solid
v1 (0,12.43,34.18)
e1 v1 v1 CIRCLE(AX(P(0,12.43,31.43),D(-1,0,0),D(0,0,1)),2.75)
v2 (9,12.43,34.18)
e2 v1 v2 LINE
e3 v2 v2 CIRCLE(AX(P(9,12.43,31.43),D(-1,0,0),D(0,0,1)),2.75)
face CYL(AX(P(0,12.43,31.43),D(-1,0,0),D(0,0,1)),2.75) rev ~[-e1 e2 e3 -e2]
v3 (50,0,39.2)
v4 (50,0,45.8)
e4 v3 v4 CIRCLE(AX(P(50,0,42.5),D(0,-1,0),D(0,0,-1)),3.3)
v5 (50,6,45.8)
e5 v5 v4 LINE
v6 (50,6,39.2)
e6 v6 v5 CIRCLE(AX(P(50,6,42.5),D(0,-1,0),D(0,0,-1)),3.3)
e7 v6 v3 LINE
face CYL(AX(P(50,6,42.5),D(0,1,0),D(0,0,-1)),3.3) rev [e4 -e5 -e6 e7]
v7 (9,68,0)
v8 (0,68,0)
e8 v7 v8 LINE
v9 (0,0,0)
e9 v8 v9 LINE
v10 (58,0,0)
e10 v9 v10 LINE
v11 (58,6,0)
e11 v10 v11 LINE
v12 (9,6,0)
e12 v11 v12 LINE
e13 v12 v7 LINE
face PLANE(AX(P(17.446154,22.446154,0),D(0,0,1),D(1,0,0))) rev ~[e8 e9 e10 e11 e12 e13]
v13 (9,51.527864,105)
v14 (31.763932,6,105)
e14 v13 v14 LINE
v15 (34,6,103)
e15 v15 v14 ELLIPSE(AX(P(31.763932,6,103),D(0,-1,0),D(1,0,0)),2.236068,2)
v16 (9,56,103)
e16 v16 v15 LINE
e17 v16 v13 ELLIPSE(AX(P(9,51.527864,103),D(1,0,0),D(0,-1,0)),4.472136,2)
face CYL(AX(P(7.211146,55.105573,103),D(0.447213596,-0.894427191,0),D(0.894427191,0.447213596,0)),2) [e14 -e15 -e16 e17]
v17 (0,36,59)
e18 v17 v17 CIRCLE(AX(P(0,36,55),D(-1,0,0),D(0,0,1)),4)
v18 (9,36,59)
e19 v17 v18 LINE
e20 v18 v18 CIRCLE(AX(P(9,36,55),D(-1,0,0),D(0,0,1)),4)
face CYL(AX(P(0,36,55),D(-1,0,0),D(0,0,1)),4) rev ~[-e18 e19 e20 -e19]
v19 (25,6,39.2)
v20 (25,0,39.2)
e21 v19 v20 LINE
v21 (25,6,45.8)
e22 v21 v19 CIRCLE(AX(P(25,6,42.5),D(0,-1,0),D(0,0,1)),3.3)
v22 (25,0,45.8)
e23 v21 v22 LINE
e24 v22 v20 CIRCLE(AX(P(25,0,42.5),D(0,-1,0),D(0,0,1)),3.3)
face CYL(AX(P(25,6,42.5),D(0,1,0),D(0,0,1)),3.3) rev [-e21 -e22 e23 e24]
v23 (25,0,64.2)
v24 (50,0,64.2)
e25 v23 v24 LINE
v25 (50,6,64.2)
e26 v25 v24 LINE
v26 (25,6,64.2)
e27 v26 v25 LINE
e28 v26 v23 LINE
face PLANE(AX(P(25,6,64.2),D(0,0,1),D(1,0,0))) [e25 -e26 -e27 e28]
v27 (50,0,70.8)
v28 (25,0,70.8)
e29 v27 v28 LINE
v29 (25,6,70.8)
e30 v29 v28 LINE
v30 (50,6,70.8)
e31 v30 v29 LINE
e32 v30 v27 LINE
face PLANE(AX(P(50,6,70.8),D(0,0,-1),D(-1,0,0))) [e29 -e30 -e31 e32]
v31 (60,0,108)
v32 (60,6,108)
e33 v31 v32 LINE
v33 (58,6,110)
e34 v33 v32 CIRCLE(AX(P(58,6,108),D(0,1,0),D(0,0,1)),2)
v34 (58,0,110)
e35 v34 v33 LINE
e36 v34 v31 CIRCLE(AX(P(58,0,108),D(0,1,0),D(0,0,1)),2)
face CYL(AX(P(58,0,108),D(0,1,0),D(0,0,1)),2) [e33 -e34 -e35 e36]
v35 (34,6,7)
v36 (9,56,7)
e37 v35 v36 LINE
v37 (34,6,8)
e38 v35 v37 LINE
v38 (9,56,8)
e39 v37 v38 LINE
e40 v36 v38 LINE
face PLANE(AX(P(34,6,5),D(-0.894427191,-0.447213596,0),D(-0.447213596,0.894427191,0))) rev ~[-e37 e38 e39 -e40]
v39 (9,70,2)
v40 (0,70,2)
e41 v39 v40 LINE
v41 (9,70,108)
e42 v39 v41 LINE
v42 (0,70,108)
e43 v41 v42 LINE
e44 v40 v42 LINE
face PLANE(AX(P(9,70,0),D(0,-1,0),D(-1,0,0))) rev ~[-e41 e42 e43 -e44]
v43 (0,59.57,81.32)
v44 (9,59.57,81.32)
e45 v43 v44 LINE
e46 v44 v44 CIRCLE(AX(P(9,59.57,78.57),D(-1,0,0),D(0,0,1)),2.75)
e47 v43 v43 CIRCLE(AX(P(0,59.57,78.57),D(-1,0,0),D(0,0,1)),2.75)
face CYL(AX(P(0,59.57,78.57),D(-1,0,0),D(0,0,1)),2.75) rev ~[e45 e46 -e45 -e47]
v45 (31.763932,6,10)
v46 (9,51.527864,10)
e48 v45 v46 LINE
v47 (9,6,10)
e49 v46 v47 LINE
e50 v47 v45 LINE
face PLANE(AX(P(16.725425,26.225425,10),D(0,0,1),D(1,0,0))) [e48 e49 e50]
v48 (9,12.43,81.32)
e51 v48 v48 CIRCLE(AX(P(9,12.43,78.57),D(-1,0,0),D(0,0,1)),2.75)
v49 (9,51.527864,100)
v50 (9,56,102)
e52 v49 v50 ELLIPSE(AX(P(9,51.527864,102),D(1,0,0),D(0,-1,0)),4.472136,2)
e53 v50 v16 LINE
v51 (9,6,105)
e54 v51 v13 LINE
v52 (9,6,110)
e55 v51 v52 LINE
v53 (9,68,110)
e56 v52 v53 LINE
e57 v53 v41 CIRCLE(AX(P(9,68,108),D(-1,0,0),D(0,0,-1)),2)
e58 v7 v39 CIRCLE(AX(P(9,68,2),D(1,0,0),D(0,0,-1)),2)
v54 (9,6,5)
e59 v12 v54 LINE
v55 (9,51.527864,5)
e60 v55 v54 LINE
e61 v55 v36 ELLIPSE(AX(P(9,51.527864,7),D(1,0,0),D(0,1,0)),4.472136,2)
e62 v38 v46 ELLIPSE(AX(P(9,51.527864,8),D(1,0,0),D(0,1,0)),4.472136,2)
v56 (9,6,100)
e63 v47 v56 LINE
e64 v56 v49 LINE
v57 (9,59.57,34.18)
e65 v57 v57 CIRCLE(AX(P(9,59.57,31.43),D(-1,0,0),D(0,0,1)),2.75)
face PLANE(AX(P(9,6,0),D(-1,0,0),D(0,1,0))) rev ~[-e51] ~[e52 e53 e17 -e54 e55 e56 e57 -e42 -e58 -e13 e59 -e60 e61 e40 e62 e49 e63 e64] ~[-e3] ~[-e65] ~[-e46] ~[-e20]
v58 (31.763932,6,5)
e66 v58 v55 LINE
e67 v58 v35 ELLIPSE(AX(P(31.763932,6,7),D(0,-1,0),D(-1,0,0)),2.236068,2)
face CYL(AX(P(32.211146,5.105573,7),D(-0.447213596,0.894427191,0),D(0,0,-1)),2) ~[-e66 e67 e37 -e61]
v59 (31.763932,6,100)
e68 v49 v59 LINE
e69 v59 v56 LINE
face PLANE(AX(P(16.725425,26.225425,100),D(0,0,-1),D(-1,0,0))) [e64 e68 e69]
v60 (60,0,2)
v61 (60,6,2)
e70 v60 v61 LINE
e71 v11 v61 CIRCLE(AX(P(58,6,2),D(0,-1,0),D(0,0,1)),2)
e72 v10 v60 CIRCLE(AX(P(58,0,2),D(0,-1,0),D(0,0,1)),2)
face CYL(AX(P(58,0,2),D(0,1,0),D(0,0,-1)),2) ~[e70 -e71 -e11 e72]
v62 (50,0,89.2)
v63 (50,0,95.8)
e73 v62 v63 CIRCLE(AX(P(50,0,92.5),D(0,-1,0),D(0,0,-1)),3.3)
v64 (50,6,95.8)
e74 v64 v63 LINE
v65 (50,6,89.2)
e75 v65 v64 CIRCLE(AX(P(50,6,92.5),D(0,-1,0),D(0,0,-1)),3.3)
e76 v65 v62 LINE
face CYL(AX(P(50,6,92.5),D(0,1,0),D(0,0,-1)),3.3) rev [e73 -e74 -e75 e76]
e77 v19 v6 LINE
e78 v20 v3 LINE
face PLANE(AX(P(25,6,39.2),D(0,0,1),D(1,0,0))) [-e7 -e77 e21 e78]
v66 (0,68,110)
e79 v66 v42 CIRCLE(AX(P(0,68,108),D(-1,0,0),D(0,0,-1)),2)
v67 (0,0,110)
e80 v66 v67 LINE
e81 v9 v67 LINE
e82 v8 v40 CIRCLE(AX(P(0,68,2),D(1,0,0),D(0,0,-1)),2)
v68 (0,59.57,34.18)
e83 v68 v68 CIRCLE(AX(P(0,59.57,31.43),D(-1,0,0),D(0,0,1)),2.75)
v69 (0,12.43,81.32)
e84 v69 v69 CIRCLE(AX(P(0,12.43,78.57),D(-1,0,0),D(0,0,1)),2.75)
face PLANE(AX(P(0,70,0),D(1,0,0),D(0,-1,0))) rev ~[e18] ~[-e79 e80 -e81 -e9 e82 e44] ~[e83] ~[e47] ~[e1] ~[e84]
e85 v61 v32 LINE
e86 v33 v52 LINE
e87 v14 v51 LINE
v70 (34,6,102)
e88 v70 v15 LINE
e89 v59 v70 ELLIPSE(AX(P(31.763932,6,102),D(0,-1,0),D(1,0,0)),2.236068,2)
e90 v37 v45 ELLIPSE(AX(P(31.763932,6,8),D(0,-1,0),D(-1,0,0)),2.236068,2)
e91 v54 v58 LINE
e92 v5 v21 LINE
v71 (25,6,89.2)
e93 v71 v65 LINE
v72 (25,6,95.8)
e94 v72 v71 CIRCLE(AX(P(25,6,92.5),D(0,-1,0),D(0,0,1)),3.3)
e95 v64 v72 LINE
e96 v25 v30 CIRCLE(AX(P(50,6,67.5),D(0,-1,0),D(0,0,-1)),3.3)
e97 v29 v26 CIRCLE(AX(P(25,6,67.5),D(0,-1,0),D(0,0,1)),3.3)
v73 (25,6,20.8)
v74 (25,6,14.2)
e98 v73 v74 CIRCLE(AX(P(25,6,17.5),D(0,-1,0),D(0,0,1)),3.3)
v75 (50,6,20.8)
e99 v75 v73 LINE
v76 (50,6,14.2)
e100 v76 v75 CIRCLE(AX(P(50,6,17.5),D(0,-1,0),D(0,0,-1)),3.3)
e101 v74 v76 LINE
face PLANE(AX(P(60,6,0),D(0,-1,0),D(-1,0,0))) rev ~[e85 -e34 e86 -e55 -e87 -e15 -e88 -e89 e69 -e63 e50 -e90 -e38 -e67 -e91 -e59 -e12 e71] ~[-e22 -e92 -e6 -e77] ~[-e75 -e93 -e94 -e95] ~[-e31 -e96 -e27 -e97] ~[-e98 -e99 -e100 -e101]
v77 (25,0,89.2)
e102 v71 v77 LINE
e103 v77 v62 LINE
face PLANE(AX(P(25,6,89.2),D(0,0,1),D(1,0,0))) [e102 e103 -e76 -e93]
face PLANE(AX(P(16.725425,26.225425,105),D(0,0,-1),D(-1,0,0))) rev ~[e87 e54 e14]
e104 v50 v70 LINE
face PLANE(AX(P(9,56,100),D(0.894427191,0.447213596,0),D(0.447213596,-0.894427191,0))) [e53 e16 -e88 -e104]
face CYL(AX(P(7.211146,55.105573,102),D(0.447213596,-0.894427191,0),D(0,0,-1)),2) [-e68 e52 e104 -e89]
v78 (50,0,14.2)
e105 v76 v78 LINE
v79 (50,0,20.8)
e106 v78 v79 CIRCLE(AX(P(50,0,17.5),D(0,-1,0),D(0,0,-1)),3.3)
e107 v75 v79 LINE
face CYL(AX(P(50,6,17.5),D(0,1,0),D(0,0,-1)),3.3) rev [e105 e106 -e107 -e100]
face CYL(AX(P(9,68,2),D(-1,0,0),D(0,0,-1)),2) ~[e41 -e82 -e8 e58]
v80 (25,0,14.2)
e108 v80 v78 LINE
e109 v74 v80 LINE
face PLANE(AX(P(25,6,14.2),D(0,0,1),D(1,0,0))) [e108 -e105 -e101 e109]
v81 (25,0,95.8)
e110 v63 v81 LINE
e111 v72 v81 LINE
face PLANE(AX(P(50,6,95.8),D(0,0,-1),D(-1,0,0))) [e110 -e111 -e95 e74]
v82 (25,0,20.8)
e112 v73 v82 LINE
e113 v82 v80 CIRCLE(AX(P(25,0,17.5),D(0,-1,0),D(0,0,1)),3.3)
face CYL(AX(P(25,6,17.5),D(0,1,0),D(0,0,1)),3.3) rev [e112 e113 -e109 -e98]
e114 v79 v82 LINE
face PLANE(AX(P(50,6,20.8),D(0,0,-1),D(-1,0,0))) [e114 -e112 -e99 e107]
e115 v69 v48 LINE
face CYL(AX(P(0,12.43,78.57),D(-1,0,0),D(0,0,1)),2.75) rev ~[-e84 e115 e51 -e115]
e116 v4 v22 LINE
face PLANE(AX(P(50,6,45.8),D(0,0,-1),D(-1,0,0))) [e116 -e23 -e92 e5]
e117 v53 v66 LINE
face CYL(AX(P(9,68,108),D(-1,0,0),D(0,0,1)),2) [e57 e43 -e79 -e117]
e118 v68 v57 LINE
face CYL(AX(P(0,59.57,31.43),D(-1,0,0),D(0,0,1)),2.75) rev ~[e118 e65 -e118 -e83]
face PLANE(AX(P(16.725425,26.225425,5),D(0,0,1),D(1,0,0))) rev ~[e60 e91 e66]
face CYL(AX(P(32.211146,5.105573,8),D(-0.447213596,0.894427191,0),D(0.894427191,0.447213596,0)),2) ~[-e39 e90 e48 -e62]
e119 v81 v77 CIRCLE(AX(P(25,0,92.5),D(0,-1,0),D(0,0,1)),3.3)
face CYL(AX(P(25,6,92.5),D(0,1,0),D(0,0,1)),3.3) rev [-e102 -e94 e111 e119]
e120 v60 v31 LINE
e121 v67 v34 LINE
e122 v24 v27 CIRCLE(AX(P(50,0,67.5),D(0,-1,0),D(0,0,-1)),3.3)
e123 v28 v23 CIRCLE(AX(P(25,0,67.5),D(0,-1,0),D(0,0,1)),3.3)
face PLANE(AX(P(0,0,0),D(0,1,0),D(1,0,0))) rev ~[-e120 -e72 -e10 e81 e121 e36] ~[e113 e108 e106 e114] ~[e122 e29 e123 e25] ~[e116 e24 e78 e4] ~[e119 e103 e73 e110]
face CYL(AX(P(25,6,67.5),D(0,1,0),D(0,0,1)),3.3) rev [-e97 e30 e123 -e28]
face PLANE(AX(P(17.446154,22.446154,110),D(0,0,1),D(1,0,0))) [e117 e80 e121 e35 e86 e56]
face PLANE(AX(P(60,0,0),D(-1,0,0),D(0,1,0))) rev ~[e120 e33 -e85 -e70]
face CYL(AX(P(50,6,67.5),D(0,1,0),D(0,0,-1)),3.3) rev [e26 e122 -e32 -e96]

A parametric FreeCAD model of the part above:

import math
import FreeCAD as App
import Part
import Sketcher
Q = App.Units.Quantity


def edges_at(feature, points):
    """Names of the edges that pass closest to the given points."""
    edges = feature.Shape.Edges
    near = lambda p: min(range(len(edges)), key=lambda i: edges[i].distToShape(Part.Vertex(*p))[0])
    return sorted({f"Edge{near(p) + 1}" for p in points})


def add_polygon(sketch, points):
    """Adds a closed chain of lines whose ends are joined by coincident constraints."""
    first, n = sketch.GeometryCount, len(points)
    for a, b in zip(points, points[1:] + points[:1]):
        sketch.addGeometry(Part.LineSegment(App.Vector(*a, 0), App.Vector(*b, 0)), False)
    for i in range(n):
        sketch.addConstraint(Sketcher.Constraint("Coincident", first + i, 2, first + (i + 1) % n, 1))

doc = App.newDocument("Part")
body = doc.addObject("PartDesign::Body", "Body")

# Sketch on XY plane
sketch1 = doc.addObject("Sketcher::SketchObject", "Sketch")
body.addObject(sketch1)
sketch1.AttachmentSupport = (doc.XY_Plane, [""])
sketch1.MapMode = "FlatFace"
add_polygon(sketch1, [(0, 0), (60, 0), (60, 6), (9, 6), (9, 70), (0, 70)])  # lines 0-5
sketch1.addConstraint([
    Sketcher.Constraint("Horizontal", 0),
    Sketcher.Constraint("Vertical", 1),
    Sketcher.Constraint("Horizontal", 2),
    Sketcher.Constraint("Vertical", 3),
    Sketcher.Constraint("Horizontal", 4),
    Sketcher.Constraint("Vertical", 5),
    Sketcher.Constraint("Coincident", 5, 2, -1, 1),
    Sketcher.Constraint("DistanceX", 0, 1, 0, 2, Q("60 mm")),
    Sketcher.Constraint("DistanceX", 2, 2, 2, 1, Q("51 mm")),
    Sketcher.Constraint("DistanceY", 1, 1, 1, 2, Q("6 mm")),
    Sketcher.Constraint("DistanceY", 3, 1, 3, 2, Q("64 mm")),
])
pad1 = doc.addObject("PartDesign::Pad", "Pad")
body.addObject(pad1)
pad1.Profile = sketch1
pad1.Length = 110

# Sketch on YZ plane
sketch2 = doc.addObject("Sketcher::SketchObject", "Sketch001")
body.addObject(sketch2)
sketch2.AttachmentSupport = (doc.YZ_Plane, [""])
sketch2.MapMode = "FlatFace"
sketch2.addGeometry([
    Part.Circle(App.Vector(36, 55, 0), App.Vector(0, 0, 1), 4),  # 0
    Part.Circle(App.Vector(59.6, 78.6, 0), App.Vector(0, 0, 1), 2.8),  # 1
    Part.Circle(App.Vector(59.6, 31.4, 0), App.Vector(0, 0, 1), 2.8),  # 2
    Part.Circle(App.Vector(12.4, 31.4, 0), App.Vector(0, 0, 1), 2.8),  # 3
    Part.Circle(App.Vector(12.4, 78.6, 0), App.Vector(0, 0, 1), 2.8),  # 4
], False)
sketch2.addConstraint([
    Sketcher.Constraint("Equal", 1, 2),
    Sketcher.Constraint("Equal", 2, 3),
    Sketcher.Constraint("Equal", 3, 4),
    Sketcher.Constraint("Horizontal", 2, 3, 3, 3),
    Sketcher.Constraint("Horizontal", 1, 3, 4, 3),
    Sketcher.Constraint("Vertical", 1, 3, 2, 3),
    Sketcher.Constraint("Vertical", 3, 3, 4, 3),
    Sketcher.Constraint("Diameter", 0, Q("8 mm")),
    Sketcher.Constraint("Diameter", 1, Q("5.5 mm")),
    Sketcher.Constraint("DistanceX", -1, 1, 0, 3, Q("36 mm")),
    Sketcher.Constraint("DistanceY", -1, 1, 0, 3, Q("55 mm")),
    Sketcher.Constraint("DistanceX", -1, 1, 1, 3, Q("59.57 mm")),
    Sketcher.Constraint("DistanceY", -1, 1, 1, 3, Q("78.57 mm")),
    Sketcher.Constraint("DistanceY", -1, 1, 2, 3, Q("31.43 mm")),
    Sketcher.Constraint("DistanceX", -1, 1, 3, 3, Q("12.43 mm")),
])
pocket1 = doc.addObject("PartDesign::Pocket", "Pocket")
body.addObject(pocket1)
pocket1.Profile = sketch2
pocket1.Length = 9
pocket1.Reversed = True

# Sketch on XZ plane
sketch3 = doc.addObject("Sketcher::SketchObject", "Sketch002")
body.addObject(sketch3)
sketch3.AttachmentSupport = (doc.XZ_Plane, [""])
sketch3.MapMode = "FlatFace"
sketch3.AttachmentOffset = App.Placement(App.Vector(0, 0, -6), App.Rotation())
sketch3.addGeometry([
    Part.LineSegment(App.Vector(50, 14.2, 0), App.Vector(25, 14.2, 0)),  # 0
    Part.ArcOfCircle(Part.Circle(App.Vector(25, 17.5, 0), App.Vector(0, 0, 1), 3.3), math.radians(90), math.radians(270)),  # 1
    Part.LineSegment(App.Vector(25, 20.8, 0), App.Vector(50, 20.8, 0)),  # 2
    Part.ArcOfCircle(Part.Circle(App.Vector(50, 17.5, 0), App.Vector(0, 0, 1), 3.3), math.radians(-90), math.radians(90)),  # 3
    Part.LineSegment(App.Vector(50, 39.2, 0), App.Vector(25, 39.2, 0)),  # 4
    Part.ArcOfCircle(Part.Circle(App.Vector(25, 42.5, 0), App.Vector(0, 0, 1), 3.3), math.radians(90), math.radians(270)),  # 5
    Part.LineSegment(App.Vector(25, 45.8, 0), App.Vector(50, 45.8, 0)),  # 6
    Part.ArcOfCircle(Part.Circle(App.Vector(50, 42.5, 0), App.Vector(0, 0, 1), 3.3), math.radians(-90), math.radians(90)),  # 7
    Part.LineSegment(App.Vector(50, 64.2, 0), App.Vector(25, 64.2, 0)),  # 8
    Part.ArcOfCircle(Part.Circle(App.Vector(25, 67.5, 0), App.Vector(0, 0, 1), 3.3), math.radians(90), math.radians(270)),  # 9
    Part.LineSegment(App.Vector(25, 70.8, 0), App.Vector(50, 70.8, 0)),  # 10
    Part.ArcOfCircle(Part.Circle(App.Vector(50, 67.5, 0), App.Vector(0, 0, 1), 3.3), math.radians(-90), math.radians(90)),  # 11
    Part.LineSegment(App.Vector(50, 89.2, 0), App.Vector(25, 89.2, 0)),  # 12
    Part.ArcOfCircle(Part.Circle(App.Vector(25, 92.5, 0), App.Vector(0, 0, 1), 3.3), math.radians(90), math.radians(270)),  # 13
    Part.LineSegment(App.Vector(25, 95.8, 0), App.Vector(50, 95.8, 0)),  # 14
    Part.ArcOfCircle(Part.Circle(App.Vector(50, 92.5, 0), App.Vector(0, 0, 1), 3.3), math.radians(-90), math.radians(90)),  # 15
], False)
sketch3.addConstraint([
    Sketcher.Constraint("Tangent", 0, 2, 1, 2),
    Sketcher.Constraint("Tangent", 1, 1, 2, 1),
    Sketcher.Constraint("Tangent", 2, 2, 3, 2),
    Sketcher.Constraint("Tangent", 3, 1, 0, 1),
    Sketcher.Constraint("Tangent", 4, 2, 5, 2),
    Sketcher.Constraint("Tangent", 5, 1, 6, 1),
    Sketcher.Constraint("Tangent", 6, 2, 7, 2),
    Sketcher.Constraint("Tangent", 7, 1, 4, 1),
    Sketcher.Constraint("Tangent", 8, 2, 9, 2),
    Sketcher.Constraint("Tangent", 9, 1, 10, 1),
    Sketcher.Constraint("Tangent", 10, 2, 11, 2),
    Sketcher.Constraint("Tangent", 11, 1, 8, 1),
    Sketcher.Constraint("Tangent", 12, 2, 13, 2),
    Sketcher.Constraint("Tangent", 13, 1, 14, 1),
    Sketcher.Constraint("Tangent", 14, 2, 15, 2),
    Sketcher.Constraint("Tangent", 15, 1, 12, 1),
    Sketcher.Constraint("Horizontal", 0),
    Sketcher.Constraint("Horizontal", 2),
    Sketcher.Constraint("Horizontal", 4),
    Sketcher.Constraint("Horizontal", 6),
    Sketcher.Constraint("Horizontal", 8),
    Sketcher.Constraint("Horizontal", 10),
    Sketcher.Constraint("Horizontal", 12),
    Sketcher.Constraint("Horizontal", 14),
    Sketcher.Constraint("Equal", 3, 5),
    Sketcher.Constraint("Equal", 7, 9),
    Sketcher.Constraint("Equal", 11, 13),
    Sketcher.Constraint("Vertical", 1, 3, 5, 3),
    Sketcher.Constraint("Vertical", 3, 3, 7, 3),
    Sketcher.Constraint("Vertical", 5, 3, 9, 3),
    Sketcher.Constraint("Vertical", 7, 3, 11, 3),
    Sketcher.Constraint("Vertical", 9, 3, 13, 3),
    Sketcher.Constraint("Vertical", 11, 3, 15, 3),
    Sketcher.Constraint("Radius", 1, Q("3.3 mm")),
    Sketcher.Constraint("DistanceX", 0, 2, 0, 1, Q("25 mm")),
    Sketcher.Constraint("DistanceX", -1, 1, 1, 3, Q("25 mm")),
    Sketcher.Constraint("DistanceY", 1, 3, 5, 3, Q("25 mm")),
    Sketcher.Constraint("DistanceY", 5, 3, 9, 3, Q("25 mm")),
    Sketcher.Constraint("DistanceY", 9, 3, 13, 3, Q("25 mm")),
    Sketcher.Constraint("DistanceY", -1, 1, 1, 3, Q("17.5 mm")),
])
pocket2 = doc.addObject("PartDesign::Pocket", "Pocket001")
body.addObject(pocket2)
pocket2.Profile = sketch3
pocket2.Length = 6
pocket2.Reversed = True

# Sketch on XY plane
sketch4 = doc.addObject("Sketcher::SketchObject", "Sketch003")
body.addObject(sketch4)
sketch4.AttachmentSupport = (doc.XY_Plane, [""])
sketch4.MapMode = "FlatFace"
sketch4.AttachmentOffset = App.Placement(App.Vector(0, 0, 102), App.Rotation())
add_polygon(sketch4, [(34, 6), (9, 56), (9, 6)])  # lines 0-2
sketch4.addConstraint([
    Sketcher.Constraint("Vertical", 1),
    Sketcher.Constraint("Horizontal", 2),
    Sketcher.Constraint("DistanceX", 2, 1, 2, 2, Q("25 mm")),
    Sketcher.Constraint("DistanceY", 1, 2, 1, 1, Q("50 mm")),
    Sketcher.Constraint("DistanceX", -1, 1, 0, 2, Q("9 mm")),
    Sketcher.Constraint("DistanceY", -1, 1, 0, 2, Q("56 mm")),
])
pad2 = doc.addObject("PartDesign::Pad", "Pad001")
body.addObject(pad2)
pad2.Profile = sketch4
pad2.Type = "TwoLengths"
pad2.Length = 3
pad2.Length2 = 2

# Sketch on XY plane
sketch5 = doc.addObject("Sketcher::SketchObject", "Sketch004")
body.addObject(sketch5)
sketch5.AttachmentSupport = (doc.XY_Plane, [""])
sketch5.MapMode = "FlatFace"
sketch5.AttachmentOffset = App.Placement(App.Vector(0, 0, 8), App.Rotation())
add_polygon(sketch5, [(9, 56), (9, 6), (34, 6)])  # lines 0-2
sketch5.addConstraint([
    Sketcher.Constraint("Vertical", 0),
    Sketcher.Constraint("Horizontal", 1),
    Sketcher.Constraint("DistanceX", 1, 1, 1, 2, Q("25 mm")),
    Sketcher.Constraint("DistanceY", 0, 2, 0, 1, Q("50 mm")),
    Sketcher.Constraint("DistanceX", -1, 1, 0, 2, Q("9 mm")),
    Sketcher.Constraint("DistanceY", -1, 1, 0, 2, Q("6 mm")),
])
pad3 = doc.addObject("PartDesign::Pad", "Pad002")
body.addObject(pad3)
pad3.Profile = sketch5
pad3.Type = "TwoLengths"
pad3.Length = 2
pad3.Length2 = 3
doc.recompute()

fillet = doc.addObject("PartDesign::Fillet", "Fillet")
body.addObject(fillet)
fillet.Base = (pad3, edges_at(pad3, [
    (21.5, 31, 100),
    (21.5, 31, 105),
    (21.5, 31, 5),
    (21.5, 31, 10),
    (60, 3, 110),
    (4.5, 70, 110),
    (4.5, 70, 0),
    (60, 3, 0),
]))
fillet.Radius = 2

doc.recompute()
